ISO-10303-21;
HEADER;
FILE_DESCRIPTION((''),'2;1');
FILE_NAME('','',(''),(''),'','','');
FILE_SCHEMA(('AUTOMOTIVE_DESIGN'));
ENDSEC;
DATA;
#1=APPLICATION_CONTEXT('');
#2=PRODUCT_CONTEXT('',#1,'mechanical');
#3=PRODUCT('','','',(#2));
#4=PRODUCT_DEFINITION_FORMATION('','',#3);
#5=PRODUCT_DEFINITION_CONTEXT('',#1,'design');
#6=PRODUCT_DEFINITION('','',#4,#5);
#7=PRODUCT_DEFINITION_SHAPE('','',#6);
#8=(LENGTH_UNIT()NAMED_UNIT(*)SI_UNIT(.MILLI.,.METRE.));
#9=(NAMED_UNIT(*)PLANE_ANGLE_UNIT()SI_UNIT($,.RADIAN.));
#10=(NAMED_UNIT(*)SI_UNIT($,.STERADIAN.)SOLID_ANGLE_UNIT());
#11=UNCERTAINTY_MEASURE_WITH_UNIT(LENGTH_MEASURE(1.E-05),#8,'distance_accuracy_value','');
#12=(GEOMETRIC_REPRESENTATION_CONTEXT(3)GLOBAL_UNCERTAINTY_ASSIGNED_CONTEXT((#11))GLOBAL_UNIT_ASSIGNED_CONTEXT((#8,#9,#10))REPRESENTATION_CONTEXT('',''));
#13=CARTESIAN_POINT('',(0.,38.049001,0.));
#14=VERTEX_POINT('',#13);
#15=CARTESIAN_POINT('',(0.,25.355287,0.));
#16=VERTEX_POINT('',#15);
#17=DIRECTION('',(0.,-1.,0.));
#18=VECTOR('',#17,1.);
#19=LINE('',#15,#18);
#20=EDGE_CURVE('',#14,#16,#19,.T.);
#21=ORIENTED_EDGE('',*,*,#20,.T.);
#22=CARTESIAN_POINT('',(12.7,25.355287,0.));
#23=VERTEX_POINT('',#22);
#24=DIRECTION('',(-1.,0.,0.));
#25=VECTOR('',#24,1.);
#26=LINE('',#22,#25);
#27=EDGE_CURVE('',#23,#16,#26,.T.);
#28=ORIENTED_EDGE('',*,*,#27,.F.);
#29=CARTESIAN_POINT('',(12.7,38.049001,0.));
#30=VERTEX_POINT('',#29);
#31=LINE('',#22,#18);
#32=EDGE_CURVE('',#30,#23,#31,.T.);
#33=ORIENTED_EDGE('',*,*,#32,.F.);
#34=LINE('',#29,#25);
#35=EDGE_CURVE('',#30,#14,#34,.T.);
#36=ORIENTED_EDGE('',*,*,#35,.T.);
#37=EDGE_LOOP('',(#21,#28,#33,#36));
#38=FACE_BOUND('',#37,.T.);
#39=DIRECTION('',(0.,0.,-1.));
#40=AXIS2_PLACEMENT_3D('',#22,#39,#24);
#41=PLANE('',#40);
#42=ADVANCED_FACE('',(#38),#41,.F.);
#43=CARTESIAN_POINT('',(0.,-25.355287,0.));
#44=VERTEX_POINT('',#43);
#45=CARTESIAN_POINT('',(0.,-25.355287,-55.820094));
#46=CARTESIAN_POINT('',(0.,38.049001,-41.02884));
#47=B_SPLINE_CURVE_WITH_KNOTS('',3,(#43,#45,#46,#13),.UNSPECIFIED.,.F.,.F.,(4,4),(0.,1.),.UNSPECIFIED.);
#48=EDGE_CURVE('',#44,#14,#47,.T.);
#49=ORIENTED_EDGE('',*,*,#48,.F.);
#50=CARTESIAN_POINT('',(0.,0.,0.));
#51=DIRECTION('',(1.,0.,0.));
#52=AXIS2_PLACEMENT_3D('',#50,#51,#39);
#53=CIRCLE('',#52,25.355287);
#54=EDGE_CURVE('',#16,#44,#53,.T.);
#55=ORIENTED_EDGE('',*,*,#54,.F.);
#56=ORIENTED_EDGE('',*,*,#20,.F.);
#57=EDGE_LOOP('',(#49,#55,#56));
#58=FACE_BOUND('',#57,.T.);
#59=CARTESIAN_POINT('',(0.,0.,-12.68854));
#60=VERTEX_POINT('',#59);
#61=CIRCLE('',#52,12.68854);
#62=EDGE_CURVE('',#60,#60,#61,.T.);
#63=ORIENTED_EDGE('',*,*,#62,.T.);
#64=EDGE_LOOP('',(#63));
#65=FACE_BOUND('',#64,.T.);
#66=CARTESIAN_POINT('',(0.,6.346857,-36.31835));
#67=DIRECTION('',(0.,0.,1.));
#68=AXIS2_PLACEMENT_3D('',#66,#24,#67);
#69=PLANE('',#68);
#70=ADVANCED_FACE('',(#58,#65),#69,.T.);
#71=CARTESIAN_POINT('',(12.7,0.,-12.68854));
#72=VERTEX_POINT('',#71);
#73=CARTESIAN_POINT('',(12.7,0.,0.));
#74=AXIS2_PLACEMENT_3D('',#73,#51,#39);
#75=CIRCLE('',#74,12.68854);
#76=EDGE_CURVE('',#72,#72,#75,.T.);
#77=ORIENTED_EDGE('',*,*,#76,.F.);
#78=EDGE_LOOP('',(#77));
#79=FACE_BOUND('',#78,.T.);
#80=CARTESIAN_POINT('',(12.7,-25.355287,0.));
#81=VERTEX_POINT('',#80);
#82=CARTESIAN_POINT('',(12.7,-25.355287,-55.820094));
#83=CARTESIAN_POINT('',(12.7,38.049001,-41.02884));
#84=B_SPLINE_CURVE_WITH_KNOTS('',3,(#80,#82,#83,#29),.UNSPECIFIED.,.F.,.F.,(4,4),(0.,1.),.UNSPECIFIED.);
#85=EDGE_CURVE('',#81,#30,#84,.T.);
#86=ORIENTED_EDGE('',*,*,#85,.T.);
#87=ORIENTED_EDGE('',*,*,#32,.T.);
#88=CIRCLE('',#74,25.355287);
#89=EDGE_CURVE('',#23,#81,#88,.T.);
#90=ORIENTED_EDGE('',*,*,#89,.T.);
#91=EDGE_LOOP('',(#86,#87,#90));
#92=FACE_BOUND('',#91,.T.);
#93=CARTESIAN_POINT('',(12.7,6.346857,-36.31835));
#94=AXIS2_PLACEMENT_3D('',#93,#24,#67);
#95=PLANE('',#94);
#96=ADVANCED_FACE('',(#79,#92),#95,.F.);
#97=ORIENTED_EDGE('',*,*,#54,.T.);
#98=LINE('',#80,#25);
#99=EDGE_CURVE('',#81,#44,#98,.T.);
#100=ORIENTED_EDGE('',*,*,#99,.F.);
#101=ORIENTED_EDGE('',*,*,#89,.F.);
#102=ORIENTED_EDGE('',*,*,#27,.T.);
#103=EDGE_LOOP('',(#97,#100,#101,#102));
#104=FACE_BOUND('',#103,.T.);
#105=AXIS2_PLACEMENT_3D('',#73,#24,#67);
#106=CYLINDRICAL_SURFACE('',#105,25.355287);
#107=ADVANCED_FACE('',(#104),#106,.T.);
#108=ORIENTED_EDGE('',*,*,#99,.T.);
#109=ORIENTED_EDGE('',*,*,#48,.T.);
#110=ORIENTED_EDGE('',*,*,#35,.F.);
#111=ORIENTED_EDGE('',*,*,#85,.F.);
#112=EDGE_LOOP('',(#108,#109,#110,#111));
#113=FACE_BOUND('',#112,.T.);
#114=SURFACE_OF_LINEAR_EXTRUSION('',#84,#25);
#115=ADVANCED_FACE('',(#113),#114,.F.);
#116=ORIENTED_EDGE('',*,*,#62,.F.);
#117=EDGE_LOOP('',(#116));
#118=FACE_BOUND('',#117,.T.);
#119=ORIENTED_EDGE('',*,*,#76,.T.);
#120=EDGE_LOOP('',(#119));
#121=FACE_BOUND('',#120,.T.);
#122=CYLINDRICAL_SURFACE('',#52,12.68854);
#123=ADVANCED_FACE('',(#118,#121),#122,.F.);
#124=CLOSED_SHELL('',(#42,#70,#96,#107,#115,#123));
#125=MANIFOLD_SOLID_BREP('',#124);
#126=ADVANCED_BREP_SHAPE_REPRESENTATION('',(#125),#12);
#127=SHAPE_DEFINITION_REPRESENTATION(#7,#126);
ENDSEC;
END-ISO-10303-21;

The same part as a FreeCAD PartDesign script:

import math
import FreeCAD as App
import Part
import Sketcher
from FreeCAD import Vector
Q = App.Units.Quantity

doc = App.newDocument("Part")
body = doc.addObject("PartDesign::Body", "Body")

sketch1 = doc.addObject("Sketcher::SketchObject", "Sketch")
body.addObject(sketch1)
sketch1.AttachmentSupport = (doc.YZ_Plane, [""])
sketch1.MapMode = "FlatFace"
sketch1.addGeometry([
    Part.LineSegment(Vector(38.049001, 0, 0), Vector(25.355287, 0, 0)),
    Part.ArcOfCircle(Part.Circle(Vector(0, 0, 0), Vector(0, 0, 1), 25.355287), math.radians(0), math.radians(180)),
    Part.BSplineCurve([Vector(-25.355287, 0, 0), Vector(-25.355287, -55.820094, 0), Vector(38.049001, -41.02884, 0), Vector(38.049001, 0, 0)], [4, 4], [0, 1], False, 3, [1, 1, 1, 1], False),
], False)
sketch1.addConstraint([
    Sketcher.Constraint("Block", 2),
    Sketcher.Constraint("Coincident", 0, 2, 1, 1),
    Sketcher.Constraint("Coincident", 1, 2, 2, 1),
    Sketcher.Constraint("Coincident", 2, 2, 0, 1),
    Sketcher.Constraint("Horizontal", 0),
    Sketcher.Constraint("Coincident", 1, 3, -1, 1),
])
pad1 = doc.addObject("PartDesign::Pad", "Pad")
body.addObject(pad1)
pad1.Profile = sketch1
pad1.Length = Q("0.5 in")

sketch2 = doc.addObject("Sketcher::SketchObject", "Sketch001")
body.addObject(sketch2)
sketch2.AttachmentSupport = (doc.YZ_Plane, [""])
sketch2.MapMode = "FlatFace"
sketch2.AttachmentOffset = App.Placement(Vector(0, 0, 0.5 * 25.4), App.Rotation())
sketch2.addGeometry(Part.Circle(Vector(0, 0, 0), Vector(0, 0, 1), 13), False)
sketch2.addConstraint([
    Sketcher.Constraint("Coincident", 0, 3, -1, 1),
    Sketcher.Constraint("Diameter", 0, 25.37708),
])
pocket1 = doc.addObject("PartDesign::Pocket", "Pocket")
body.addObject(pocket1)
pocket1.Profile = sketch2
pocket1.Length = Q("0.5 in")

doc.recompute()
